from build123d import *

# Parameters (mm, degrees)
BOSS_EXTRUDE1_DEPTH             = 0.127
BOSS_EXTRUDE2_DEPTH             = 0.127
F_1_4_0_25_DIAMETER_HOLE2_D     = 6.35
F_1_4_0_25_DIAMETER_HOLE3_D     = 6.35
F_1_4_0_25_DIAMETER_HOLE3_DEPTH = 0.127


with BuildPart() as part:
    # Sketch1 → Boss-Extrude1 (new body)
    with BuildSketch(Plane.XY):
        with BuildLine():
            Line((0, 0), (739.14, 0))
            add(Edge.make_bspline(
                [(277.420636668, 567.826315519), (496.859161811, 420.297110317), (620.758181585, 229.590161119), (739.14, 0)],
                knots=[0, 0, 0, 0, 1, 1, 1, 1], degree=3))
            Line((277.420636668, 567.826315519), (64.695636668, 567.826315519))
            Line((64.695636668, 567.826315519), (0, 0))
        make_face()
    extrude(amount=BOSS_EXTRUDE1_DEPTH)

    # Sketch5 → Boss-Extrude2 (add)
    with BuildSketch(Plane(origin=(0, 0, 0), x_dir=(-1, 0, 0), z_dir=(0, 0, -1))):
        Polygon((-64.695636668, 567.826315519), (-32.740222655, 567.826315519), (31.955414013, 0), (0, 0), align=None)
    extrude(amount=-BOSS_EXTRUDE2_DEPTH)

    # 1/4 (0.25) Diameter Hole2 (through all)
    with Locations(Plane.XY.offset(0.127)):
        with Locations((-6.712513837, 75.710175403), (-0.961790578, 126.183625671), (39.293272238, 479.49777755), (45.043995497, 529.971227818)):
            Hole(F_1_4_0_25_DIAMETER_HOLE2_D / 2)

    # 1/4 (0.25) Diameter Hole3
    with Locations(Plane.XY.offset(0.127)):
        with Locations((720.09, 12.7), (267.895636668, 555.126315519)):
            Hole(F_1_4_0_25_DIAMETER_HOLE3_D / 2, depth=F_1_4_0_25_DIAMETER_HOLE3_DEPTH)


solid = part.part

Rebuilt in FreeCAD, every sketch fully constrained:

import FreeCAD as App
import Part
import Sketcher
Q = App.Units.Quantity


def add_polygon(sketch, points):
    """Adds a closed chain of lines whose ends are joined by coincident constraints."""
    first, n = sketch.GeometryCount, len(points)
    for a, b in zip(points, points[1:] + points[:1]):
        sketch.addGeometry(Part.LineSegment(App.Vector(*a, 0), App.Vector(*b, 0)), False)
    for i in range(n):
        sketch.addConstraint(Sketcher.Constraint("Coincident", first + i, 2, first + (i + 1) % n, 1))

doc = App.newDocument("Part")
body = doc.addObject("PartDesign::Body", "Body")

# Sketch on XY plane
sketch1 = body.newObject("Sketcher::SketchObject", "Sketch")
sketch1.AttachmentSupport = (doc.getObject("XY_Plane"), [""])
sketch1.MapMode = "FlatFace"
sketch1.addGeometry(Part.LineSegment(App.Vector(0, 0, 0), App.Vector(739.14, 0, 0)), False)
sketch1.addGeometry(Part.BSplineCurve([App.Vector(277.420637, 567.826316, 0), App.Vector(496.859162, 420.29711, 0), App.Vector(620.758182, 229.590161, 0), App.Vector(739.14, 0, 0)], [4, 4], [0, 1], False, 3, [1, 1, 1, 1], False), False)
sketch1.addGeometry(Part.LineSegment(App.Vector(277.420637, 567.826316, 0), App.Vector(64.695637, 567.826316, 0)), False)
sketch1.addGeometry(Part.LineSegment(App.Vector(64.695637, 567.826316, 0), App.Vector(0, 0, 0)), False)
sketch1.addConstraint(Sketcher.Constraint("Block", 1))
sketch1.addConstraint(Sketcher.Constraint("Coincident", 0, 2, 1, 2))
sketch1.addConstraint(Sketcher.Constraint("Coincident", 1, 1, 2, 1))
sketch1.addConstraint(Sketcher.Constraint("Coincident", 2, 2, 3, 1))
sketch1.addConstraint(Sketcher.Constraint("Coincident", 3, 2, 0, 1))
sketch1.addConstraint(Sketcher.Constraint("Horizontal", 0))
sketch1.addConstraint(Sketcher.Constraint("Horizontal", 2))
sketch1.addConstraint(Sketcher.Constraint("DistanceX", 0, 1, 0, 2, Q("29.1 in")))
sketch1.addConstraint(Sketcher.Constraint("Distance", 3, Q("22.5 in")))
pad1 = body.newObject("PartDesign::Pad", "Pad")
pad1.Profile = sketch1
pad1.Length = Q("0.005 in")

# Sketch on XY plane
sketch2 = body.newObject("Sketcher::SketchObject", "Sketch001")
sketch2.AttachmentSupport = (doc.getObject("XY_Plane"), [""])
sketch2.MapMode = "FlatFace"
add_polygon(sketch2, [(33, 568), (65, 568), (0, 0), (-32, 0)])  # lines 0-3
sketch2.addConstraint(Sketcher.Constraint("Horizontal", 0))
sketch2.addConstraint(Sketcher.Constraint("Horizontal", 2))
sketch2.addConstraint(Sketcher.Constraint("Coincident", 1, 2, -1, 1))
sketch2.addConstraint(Sketcher.Constraint("Parallel", 1, 3))
sketch2.addConstraint(Sketcher.Constraint("Distance", 1, Q("22.5 in")))
sketch2.addConstraint(Sketcher.Constraint("Angle", 1, Q("-96.5 deg")))
sketch2.addConstraint(Sketcher.Constraint("DistanceX", 0, 1, 0, 2, 31.955414))
pad2 = body.newObject("PartDesign::Pad", "Pad001")
pad2.Profile = sketch2
pad2.Length = Q("0.005 in")

# Sketch on XY plane
sketch3 = body.newObject("Sketcher::SketchObject", "Sketch002")
sketch3.AttachmentSupport = (doc.getObject("XY_Plane"), [""])
sketch3.MapMode = "FlatFace"
sketch3.AttachmentOffset = App.Placement(App.Vector(0, 0, 0.005 * 25.4), App.Rotation())
sketch3.addGeometry(Part.Circle(App.Vector(-6.7, 75.7, 0), App.Vector(0, 0, 1), 3.2), False)
sketch3.addGeometry(Part.Circle(App.Vector(-1, 126.2, 0), App.Vector(0, 0, 1), 3.2), False)
sketch3.addGeometry(Part.Circle(App.Vector(39.3, 479.5, 0), App.Vector(0, 0, 1), 3.2), False)
sketch3.addGeometry(Part.Circle(App.Vector(45, 530, 0), App.Vector(0, 0, 1), 3.2), False)
sketch3.addConstraint(Sketcher.Constraint("Equal", 0, 1))
sketch3.addConstraint(Sketcher.Constraint("Equal", 1, 2))
sketch3.addConstraint(Sketcher.Constraint("Equal", 2, 3))
sketch3.addConstraint(Sketcher.Constraint("Diameter", 0, Q("0.25 in")))
sketch3.addConstraint(Sketcher.Constraint("DistanceX", 1, 3, -1, 1, 0.961791))
sketch3.addConstraint(Sketcher.Constraint("DistanceY", 0, 3, 1, 3, 50.47345))
sketch3.addConstraint(Sketcher.Constraint("DistanceY", 1, 3, 2, 3, 353.314152))
sketch3.addConstraint(Sketcher.Constraint("DistanceY", 2, 3, 3, 3, 50.47345))
sketch3.addConstraint(Sketcher.Constraint("DistanceX", 0, 3, 3, 3, 51.756509))
sketch3.addConstraint(Sketcher.Constraint("DistanceX", 0, 3, -1, 1, 6.712514))
sketch3.addConstraint(Sketcher.Constraint("DistanceY", -1, 1, 0, 3, 75.710175))
sketch3.addConstraint(Sketcher.Constraint("DistanceX", -1, 1, 2, 3, 39.293272))
doc.recompute()
hole = body.newObject("PartDesign::Hole", "Hole")
hole.Profile = sketch3
hole.ThreadType = "None"
hole.Diameter = Q("0.25 in")
hole.DepthType = "ThroughAll"

# Sketch on XY plane
sketch4 = body.newObject("Sketcher::SketchObject", "Sketch003")
sketch4.AttachmentSupport = (doc.getObject("XY_Plane"), [""])
sketch4.MapMode = "FlatFace"
sketch4.AttachmentOffset = App.Placement(App.Vector(0, 0, 0.005 * 25.4), App.Rotation())
sketch4.addGeometry(Part.Circle(App.Vector(720.1, 12.7, 0), App.Vector(0, 0, 1), 3.2), False)
sketch4.addGeometry(Part.Circle(App.Vector(267.9, 555.1, 0), App.Vector(0, 0, 1), 3.2), False)
sketch4.addConstraint(Sketcher.Constraint("Equal", 0, 1))
sketch4.addConstraint(Sketcher.Constraint("Diameter", 0, Q("0.25 in")))
sketch4.addConstraint(Sketcher.Constraint("DistanceY", -1, 1, 0, 3, Q("0.5 in")))
sketch4.addConstraint(Sketcher.Constraint("DistanceX", -1, 1, 0, 3, Q("28.35 in")))
sketch4.addConstraint(Sketcher.Constraint("DistanceX", -1, 1, 1, 3, 267.895637))
sketch4.addConstraint(Sketcher.Constraint("DistanceY", -1, 1, 1, 3, 555.126316))
doc.recompute()
hole2 = body.newObject("PartDesign::Hole", "Hole001")
hole2.Profile = sketch4
hole2.ThreadType = "None"
hole2.Diameter = Q("0.25 in")
hole2.DepthType = "Dimension"
hole2.Depth = Q("0.005 in")
hole2.DrillPoint = "Flat"

doc.recompute()
